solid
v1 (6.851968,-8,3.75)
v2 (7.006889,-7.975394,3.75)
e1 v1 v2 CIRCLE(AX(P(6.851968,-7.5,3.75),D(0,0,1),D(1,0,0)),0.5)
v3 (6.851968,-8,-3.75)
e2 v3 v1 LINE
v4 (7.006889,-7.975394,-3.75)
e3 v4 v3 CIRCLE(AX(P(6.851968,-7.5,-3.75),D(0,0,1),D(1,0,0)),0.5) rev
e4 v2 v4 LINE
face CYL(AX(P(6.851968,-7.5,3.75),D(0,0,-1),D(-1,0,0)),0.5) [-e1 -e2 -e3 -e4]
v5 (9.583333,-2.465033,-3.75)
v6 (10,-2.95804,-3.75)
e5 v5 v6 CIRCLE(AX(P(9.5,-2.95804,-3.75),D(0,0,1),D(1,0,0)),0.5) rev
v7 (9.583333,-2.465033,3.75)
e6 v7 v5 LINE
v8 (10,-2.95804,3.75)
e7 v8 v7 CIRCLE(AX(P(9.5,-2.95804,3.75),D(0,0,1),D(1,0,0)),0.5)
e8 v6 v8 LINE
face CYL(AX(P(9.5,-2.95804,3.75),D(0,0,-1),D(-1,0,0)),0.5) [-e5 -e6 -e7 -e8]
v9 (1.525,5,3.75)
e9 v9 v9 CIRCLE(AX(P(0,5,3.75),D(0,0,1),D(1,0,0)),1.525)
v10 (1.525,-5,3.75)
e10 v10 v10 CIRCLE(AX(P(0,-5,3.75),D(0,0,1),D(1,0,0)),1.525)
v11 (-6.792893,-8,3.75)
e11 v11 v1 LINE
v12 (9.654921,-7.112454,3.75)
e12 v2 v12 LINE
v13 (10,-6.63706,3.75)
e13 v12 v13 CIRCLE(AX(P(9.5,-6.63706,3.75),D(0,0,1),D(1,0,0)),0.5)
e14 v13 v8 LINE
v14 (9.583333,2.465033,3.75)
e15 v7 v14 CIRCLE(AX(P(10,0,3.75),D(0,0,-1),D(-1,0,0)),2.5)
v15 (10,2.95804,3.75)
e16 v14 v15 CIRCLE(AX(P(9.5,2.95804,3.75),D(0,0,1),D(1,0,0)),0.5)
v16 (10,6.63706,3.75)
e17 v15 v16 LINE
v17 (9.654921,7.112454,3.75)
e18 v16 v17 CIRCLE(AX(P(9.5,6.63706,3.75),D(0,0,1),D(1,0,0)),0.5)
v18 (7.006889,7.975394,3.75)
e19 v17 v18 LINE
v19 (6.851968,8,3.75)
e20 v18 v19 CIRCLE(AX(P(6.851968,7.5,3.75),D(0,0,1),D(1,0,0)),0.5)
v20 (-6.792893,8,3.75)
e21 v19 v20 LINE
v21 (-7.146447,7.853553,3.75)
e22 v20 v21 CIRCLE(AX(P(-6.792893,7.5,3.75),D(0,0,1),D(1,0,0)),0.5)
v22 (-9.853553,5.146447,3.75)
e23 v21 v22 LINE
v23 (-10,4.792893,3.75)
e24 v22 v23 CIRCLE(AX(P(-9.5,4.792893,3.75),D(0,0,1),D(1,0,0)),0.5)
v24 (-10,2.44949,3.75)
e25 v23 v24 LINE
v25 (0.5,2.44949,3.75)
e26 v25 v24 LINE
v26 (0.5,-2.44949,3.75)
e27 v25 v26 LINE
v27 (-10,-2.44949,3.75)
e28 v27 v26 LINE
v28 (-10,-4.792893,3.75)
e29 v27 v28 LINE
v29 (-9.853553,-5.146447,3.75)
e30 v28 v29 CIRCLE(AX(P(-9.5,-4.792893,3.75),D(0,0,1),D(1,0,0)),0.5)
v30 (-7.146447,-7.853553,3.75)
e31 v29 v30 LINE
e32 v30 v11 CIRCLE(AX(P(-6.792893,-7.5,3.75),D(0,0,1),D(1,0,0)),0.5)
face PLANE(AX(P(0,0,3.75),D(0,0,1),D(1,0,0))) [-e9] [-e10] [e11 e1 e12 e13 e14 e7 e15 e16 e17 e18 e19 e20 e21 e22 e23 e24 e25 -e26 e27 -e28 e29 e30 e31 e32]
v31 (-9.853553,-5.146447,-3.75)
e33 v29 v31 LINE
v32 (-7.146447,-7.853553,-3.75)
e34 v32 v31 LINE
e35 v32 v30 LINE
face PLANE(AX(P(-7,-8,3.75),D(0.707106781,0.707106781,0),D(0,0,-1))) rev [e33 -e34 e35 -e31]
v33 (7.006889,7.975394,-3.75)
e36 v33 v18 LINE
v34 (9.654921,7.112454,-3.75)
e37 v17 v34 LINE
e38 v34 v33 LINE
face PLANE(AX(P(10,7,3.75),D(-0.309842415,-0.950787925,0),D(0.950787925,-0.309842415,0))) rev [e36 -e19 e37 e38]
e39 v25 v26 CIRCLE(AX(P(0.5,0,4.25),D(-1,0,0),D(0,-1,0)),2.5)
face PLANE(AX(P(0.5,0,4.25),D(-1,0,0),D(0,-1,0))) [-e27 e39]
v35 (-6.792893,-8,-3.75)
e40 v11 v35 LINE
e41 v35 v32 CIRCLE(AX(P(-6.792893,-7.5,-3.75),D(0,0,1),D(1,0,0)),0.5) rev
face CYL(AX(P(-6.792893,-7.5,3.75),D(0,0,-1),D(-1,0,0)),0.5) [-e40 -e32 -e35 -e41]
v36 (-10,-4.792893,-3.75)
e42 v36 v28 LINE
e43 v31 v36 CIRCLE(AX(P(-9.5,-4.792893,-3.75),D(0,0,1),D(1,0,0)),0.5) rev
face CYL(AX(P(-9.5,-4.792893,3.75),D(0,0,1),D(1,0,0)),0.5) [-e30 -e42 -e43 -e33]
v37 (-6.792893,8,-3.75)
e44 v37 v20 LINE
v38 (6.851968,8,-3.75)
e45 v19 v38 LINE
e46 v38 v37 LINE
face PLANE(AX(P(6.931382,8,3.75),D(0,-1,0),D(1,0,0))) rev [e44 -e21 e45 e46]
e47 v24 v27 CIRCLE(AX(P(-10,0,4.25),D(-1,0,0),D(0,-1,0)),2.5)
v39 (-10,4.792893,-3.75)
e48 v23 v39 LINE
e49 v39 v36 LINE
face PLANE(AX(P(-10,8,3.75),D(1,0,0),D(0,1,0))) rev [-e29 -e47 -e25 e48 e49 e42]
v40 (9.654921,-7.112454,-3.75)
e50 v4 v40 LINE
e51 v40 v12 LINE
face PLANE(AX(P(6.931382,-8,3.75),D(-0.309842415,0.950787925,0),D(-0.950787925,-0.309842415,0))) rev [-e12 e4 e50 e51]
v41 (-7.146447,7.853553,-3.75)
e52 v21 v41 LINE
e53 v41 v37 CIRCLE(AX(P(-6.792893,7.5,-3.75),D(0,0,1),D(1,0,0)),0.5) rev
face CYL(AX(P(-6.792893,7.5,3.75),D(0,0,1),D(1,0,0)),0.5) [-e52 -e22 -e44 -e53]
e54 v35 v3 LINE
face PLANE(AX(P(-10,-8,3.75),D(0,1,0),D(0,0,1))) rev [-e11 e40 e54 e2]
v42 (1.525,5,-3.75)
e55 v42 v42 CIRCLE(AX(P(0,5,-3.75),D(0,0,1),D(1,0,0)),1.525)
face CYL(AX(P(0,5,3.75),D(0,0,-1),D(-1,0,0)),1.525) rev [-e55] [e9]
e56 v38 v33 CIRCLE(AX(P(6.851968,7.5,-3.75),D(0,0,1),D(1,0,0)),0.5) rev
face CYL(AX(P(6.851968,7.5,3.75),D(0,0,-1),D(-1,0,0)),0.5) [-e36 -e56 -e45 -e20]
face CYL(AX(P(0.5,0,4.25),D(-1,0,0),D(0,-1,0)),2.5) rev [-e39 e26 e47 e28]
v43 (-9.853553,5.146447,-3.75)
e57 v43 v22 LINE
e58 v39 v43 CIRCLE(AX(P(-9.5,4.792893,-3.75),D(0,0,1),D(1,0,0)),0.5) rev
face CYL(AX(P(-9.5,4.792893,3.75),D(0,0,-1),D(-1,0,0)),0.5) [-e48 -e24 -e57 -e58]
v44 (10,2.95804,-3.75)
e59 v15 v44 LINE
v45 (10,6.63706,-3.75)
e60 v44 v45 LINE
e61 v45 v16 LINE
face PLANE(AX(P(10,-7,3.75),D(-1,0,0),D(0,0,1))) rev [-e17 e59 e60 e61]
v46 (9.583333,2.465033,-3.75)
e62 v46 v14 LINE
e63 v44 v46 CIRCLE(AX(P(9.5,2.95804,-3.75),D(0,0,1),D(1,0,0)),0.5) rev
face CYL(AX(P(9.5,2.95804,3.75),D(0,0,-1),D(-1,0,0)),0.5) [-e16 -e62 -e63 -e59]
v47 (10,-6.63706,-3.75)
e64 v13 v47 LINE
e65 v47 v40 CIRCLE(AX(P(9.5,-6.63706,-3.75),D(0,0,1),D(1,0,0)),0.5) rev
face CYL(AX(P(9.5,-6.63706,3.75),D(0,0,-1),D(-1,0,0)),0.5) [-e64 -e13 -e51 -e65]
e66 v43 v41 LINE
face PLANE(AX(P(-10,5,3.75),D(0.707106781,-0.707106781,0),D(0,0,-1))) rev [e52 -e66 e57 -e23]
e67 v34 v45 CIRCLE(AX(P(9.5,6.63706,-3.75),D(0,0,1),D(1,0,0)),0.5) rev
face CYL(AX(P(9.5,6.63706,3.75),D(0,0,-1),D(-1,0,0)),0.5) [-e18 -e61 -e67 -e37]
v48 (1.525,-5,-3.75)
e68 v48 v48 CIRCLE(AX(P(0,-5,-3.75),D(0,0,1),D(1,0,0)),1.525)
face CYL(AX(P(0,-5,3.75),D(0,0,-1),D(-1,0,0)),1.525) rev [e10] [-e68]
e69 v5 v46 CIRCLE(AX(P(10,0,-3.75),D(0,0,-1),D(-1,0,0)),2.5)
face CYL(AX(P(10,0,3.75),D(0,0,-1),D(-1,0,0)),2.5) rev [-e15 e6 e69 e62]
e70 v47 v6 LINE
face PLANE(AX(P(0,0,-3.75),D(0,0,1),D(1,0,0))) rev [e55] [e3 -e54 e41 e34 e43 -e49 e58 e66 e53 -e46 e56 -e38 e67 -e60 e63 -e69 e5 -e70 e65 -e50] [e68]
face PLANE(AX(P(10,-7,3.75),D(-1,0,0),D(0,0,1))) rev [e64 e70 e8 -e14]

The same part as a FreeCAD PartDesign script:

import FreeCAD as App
import Part
import Sketcher

V = App.Vector
Q = App.Units.Quantity


def edges_at(feature, points):
    """Names of the edges that pass closest to the given points."""
    edges = feature.Shape.Edges
    near = lambda p: min(range(len(edges)), key=lambda i: edges[i].distToShape(Part.Vertex(*p))[0])
    return sorted({f"Edge{near(p) + 1}" for p in points})

doc = App.newDocument("Part")
params = doc.addObject("Spreadsheet::Sheet", "Params")
for row, (alias, value) in enumerate([
    ("sketch1_diameter", "3.05 mm"),
    ("sketch1_height", "16 mm"),
    ("sketch1_height2", "14 mm"),
    ("pad1_length", "7.5 mm"),
    ("sketch2_diameter", "5 mm"),
    ("pocket1_length", "10.5 mm"),
    ("chamfer_size", "3 mm"),
    ("sketch3_diameter", "5 mm"),
    ("fillet_radius", "0.5 mm"),
], start=1):
    params.set(f"A{row}", alias)
    params.set(f"B{row}", "=" + value)
    params.setAlias(f"B{row}", alias)

body = doc.addObject("PartDesign::Body", "Body")

sketch1 = doc.addObject("Sketcher::SketchObject", "Sketch")
body.addObject(sketch1)
sketch1.AttachmentSupport = (doc.XY_Plane, [""])
sketch1.MapMode = "FlatFace"
sketch1.addGeometry([
    Part.LineSegment(V(-10, 8, 0), V(-10, -8, 0)),
    Part.LineSegment(V(-10, -8, 0), V(6.9, -8, 0)),
    Part.LineSegment(V(6.9, -8, 0), V(10, -7, 0)),
    Part.LineSegment(V(10, -7, 0), V(10, 7, 0)),
    Part.LineSegment(V(10, 7, 0), V(6.9, 8, 0)),
    Part.LineSegment(V(6.9, 8, 0), V(-10, 8, 0)),
    Part.Circle(V(0, -5, 0), V(0, 0, 1), 1.5),
    Part.Circle(V(0, 5, 0), V(0, 0, 1), 1.5),
], False)
sketch1.addConstraint([
    Sketcher.Constraint("Coincident", 0, 2, 1, 1),
    Sketcher.Constraint("Coincident", 1, 2, 2, 1),
    Sketcher.Constraint("Coincident", 2, 2, 3, 1),
    Sketcher.Constraint("Coincident", 3, 2, 4, 1),
    Sketcher.Constraint("Coincident", 4, 2, 5, 1),
    Sketcher.Constraint("Coincident", 5, 2, 0, 1),
    Sketcher.Constraint("Vertical", 0),
    Sketcher.Constraint("Horizontal", 1),
    Sketcher.Constraint("Vertical", 3),
    Sketcher.Constraint("Horizontal", 5),
    Sketcher.Constraint("Equal", 6, 7),
    Sketcher.Constraint("Symmetric", 6, 3, 7, 3, -1, 1),
    Sketcher.Constraint("Symmetric", 1, 2, 4, 2, -1),
    Sketcher.Constraint("PointOnObject", 6, 3, -2),
    Sketcher.Constraint("Equal", 2, 4),
    Sketcher.Constraint("Diameter", 6, Q("3.05 mm")),
    Sketcher.Constraint("DistanceY", 0, 2, 0, 1, Q("16 mm")),
    Sketcher.Constraint("DistanceY", 3, 1, 3, 2, Q("14 mm")),
    Sketcher.Constraint("DistanceY", 6, 3, -1, 1, Q("5 mm")),
    Sketcher.Constraint("DistanceX", 0, 2, -1, 1, Q("10 mm")),
    Sketcher.Constraint("DistanceX", -1, 1, 2, 2, Q("10 mm")),
    Sketcher.Constraint("DistanceX", 1, 1, 1, 2, Q("16.931382 mm")),
])
sketch1.setExpression("Constraints[15]", "Params.sketch1_diameter")
sketch1.setExpression("Constraints[16]", "Params.sketch1_height")
sketch1.setExpression("Constraints[17]", "Params.sketch1_height2")
pad1 = doc.addObject("PartDesign::Pad", "Pad")
body.addObject(pad1)
pad1.Profile = sketch1
pad1.setExpression("Length", "Params.pad1_length")
pad1.Midplane = True

sketch2 = doc.addObject("Sketcher::SketchObject", "Sketch001")
body.addObject(sketch2)
sketch2.AttachmentSupport = (doc.YZ_Plane, [""])
sketch2.MapMode = "FlatFace"
sketch2.AttachmentOffset = App.Placement(V(0, 0, -10), App.Rotation())
sketch2.addGeometry(Part.Circle(V(0, 4.2, 0), V(0, 0, 1), 2.5), False)
sketch2.addConstraint([
    Sketcher.Constraint("PointOnObject", 0, 3, -2),
    Sketcher.Constraint("Diameter", 0, Q("5 mm")),
    Sketcher.Constraint("DistanceY", -1, 1, 0, 3, Q("4.25 mm")),
])
sketch2.setExpression("Constraints[1]", "Params.sketch2_diameter")
pocket1 = doc.addObject("PartDesign::Pocket", "Pocket")
body.addObject(pocket1)
pocket1.Profile = sketch2
pocket1.setExpression("Length", "Params.pocket1_length")
pocket1.Reversed = True
doc.recompute()

chamfer = doc.addObject("PartDesign::Chamfer", "Chamfer")
body.addObject(chamfer)
chamfer.Base = (pocket1, edges_at(pocket1, [(-10, -8, 0), (-10, 8, 0)]))
chamfer.setExpression("Size", "Params.chamfer_size")

sketch3 = doc.addObject("Sketcher::SketchObject", "Sketch002")
body.addObject(sketch3)
sketch3.AttachmentSupport = (doc.XY_Plane, [""])
sketch3.MapMode = "FlatFace"
sketch3.AttachmentOffset = App.Placement(V(0, 0, -3.75), App.Rotation())
sketch3.addGeometry(Part.Circle(V(10, 0, 0), V(0, 0, 1), 2.5), False)
sketch3.addConstraint([
    Sketcher.Constraint("PointOnObject", 0, 3, -1),
    Sketcher.Constraint("Diameter", 0, Q("5 mm")),
    Sketcher.Constraint("DistanceX", -1, 1, 0, 3, Q("10 mm")),
])
sketch3.setExpression("Constraints[1]", "Params.sketch3_diameter")
pocket2 = doc.addObject("PartDesign::Pocket", "Pocket001")
body.addObject(pocket2)
pocket2.Profile = sketch3
pocket2.Type = "ThroughAll"
pocket2.Reversed = True
doc.recompute()

fillet = doc.addObject("PartDesign::Fillet", "Fillet")
body.addObject(fillet)
fillet.Base = (pocket2, edges_at(pocket2, [
    (6.931, 8, 0),
    (10, 7, 0),
    (10, -7, 0),
    (6.931, -8, 0),
    (-7, -8, 0),
    (-10, 5, 0),
    (-10, -5, 0),
    (-7, 8, 0),
    (10, -2.5, 0),
    (10, 2.5, 0),
]))
fillet.setExpression("Radius", "Params.fillet_radius")

doc.recompute()
